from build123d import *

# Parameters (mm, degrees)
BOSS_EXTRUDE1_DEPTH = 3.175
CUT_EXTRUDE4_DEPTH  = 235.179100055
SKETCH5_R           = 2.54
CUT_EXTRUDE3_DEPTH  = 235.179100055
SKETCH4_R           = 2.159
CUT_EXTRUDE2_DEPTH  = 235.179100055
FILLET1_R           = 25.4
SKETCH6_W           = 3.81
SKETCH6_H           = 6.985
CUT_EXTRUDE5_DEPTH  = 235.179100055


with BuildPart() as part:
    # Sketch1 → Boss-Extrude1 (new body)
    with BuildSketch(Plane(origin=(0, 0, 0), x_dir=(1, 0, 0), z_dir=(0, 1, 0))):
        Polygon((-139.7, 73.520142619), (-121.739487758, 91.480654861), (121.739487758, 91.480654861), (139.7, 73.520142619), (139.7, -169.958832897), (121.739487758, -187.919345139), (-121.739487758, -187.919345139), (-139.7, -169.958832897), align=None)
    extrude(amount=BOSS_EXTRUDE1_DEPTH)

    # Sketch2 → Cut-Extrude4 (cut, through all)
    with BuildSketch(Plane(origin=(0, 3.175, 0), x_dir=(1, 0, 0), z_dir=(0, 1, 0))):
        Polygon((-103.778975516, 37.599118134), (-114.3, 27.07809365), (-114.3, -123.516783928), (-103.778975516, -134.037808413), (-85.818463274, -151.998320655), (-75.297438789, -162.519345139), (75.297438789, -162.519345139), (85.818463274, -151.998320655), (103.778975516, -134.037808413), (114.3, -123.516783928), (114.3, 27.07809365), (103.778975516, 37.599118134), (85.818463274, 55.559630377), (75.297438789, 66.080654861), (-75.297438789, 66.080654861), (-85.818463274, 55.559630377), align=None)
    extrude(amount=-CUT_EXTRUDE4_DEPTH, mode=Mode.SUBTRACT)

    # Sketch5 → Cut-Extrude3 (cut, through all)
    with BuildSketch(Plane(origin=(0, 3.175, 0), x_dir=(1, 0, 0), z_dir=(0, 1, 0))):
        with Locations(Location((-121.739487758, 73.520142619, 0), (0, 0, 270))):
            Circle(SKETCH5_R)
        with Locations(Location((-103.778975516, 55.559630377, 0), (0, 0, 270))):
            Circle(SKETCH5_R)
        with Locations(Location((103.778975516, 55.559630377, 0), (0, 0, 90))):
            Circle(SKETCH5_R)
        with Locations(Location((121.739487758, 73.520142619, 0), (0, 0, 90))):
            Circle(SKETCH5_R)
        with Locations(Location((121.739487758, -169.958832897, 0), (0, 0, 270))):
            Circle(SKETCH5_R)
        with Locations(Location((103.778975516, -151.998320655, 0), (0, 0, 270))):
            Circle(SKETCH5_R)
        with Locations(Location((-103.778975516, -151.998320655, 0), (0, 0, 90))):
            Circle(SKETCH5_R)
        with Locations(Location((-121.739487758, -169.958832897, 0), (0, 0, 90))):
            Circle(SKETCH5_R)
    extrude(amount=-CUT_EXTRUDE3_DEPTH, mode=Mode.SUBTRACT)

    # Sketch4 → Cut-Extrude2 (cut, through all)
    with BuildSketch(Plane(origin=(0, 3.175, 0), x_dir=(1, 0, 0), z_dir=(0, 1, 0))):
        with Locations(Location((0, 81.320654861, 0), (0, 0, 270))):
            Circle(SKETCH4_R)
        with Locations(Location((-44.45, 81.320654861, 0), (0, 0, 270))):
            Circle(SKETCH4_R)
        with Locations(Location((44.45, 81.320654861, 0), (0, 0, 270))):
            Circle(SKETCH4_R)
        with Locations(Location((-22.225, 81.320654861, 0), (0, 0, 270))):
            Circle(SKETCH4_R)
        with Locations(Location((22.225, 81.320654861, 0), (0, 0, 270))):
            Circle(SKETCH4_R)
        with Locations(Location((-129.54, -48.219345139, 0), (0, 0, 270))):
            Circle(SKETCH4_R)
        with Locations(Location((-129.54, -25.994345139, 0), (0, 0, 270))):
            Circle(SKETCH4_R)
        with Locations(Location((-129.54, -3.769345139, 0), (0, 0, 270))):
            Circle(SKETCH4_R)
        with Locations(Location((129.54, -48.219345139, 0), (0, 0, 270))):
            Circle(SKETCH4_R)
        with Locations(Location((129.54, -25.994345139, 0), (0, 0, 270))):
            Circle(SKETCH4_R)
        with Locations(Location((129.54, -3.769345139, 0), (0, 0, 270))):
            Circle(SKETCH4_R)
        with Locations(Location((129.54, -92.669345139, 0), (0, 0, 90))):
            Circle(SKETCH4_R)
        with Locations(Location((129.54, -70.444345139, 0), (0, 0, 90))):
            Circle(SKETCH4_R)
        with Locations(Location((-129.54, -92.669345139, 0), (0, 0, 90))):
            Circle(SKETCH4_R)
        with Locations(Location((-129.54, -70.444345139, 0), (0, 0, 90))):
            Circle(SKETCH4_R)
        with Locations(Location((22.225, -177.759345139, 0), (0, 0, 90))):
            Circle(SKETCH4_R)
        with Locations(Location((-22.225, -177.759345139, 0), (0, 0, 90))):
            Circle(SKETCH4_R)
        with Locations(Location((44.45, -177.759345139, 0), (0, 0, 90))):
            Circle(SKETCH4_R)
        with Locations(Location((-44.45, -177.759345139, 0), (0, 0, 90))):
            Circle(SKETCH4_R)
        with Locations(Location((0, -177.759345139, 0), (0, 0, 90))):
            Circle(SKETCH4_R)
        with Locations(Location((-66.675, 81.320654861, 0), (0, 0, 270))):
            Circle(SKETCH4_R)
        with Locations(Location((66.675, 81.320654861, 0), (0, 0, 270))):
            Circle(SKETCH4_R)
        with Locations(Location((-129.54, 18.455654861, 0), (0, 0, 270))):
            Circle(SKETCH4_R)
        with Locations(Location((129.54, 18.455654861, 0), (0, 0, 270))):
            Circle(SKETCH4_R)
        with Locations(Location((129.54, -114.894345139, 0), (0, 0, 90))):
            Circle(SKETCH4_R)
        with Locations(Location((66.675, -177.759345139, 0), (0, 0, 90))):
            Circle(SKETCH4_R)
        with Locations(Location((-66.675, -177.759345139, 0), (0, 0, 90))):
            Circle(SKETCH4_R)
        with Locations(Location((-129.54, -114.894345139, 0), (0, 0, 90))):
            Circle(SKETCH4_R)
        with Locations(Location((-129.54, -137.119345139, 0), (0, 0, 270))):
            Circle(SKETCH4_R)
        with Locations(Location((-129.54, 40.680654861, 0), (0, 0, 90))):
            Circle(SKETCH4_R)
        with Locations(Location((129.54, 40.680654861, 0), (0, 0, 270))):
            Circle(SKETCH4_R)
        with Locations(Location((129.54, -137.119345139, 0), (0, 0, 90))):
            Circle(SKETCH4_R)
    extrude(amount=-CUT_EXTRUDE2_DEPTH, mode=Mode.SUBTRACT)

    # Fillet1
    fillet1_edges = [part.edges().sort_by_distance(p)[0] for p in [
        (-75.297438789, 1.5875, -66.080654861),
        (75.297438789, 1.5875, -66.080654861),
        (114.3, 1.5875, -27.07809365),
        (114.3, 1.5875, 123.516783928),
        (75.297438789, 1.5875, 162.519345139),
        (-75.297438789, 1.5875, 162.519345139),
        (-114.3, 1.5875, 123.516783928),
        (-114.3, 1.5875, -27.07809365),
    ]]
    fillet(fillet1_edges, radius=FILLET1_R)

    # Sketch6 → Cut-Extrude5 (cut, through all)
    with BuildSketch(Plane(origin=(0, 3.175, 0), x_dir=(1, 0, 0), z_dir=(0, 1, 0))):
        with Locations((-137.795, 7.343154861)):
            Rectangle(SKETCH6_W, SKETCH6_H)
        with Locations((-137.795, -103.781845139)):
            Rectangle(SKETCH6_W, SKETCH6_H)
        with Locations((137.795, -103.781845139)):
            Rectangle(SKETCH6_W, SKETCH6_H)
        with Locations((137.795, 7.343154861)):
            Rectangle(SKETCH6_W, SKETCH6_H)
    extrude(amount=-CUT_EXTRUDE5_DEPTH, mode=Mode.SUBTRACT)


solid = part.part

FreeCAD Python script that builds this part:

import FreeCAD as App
import Part
import Sketcher
from FreeCAD import Vector
Q = App.Units.Quantity


def edges_at(feature, points):
    """Names of the edges that pass closest to the given points."""
    edges = feature.Shape.Edges
    near = lambda p: min(range(len(edges)), key=lambda i: edges[i].distToShape(Part.Vertex(*p))[0])
    return sorted({f"Edge{near(p) + 1}" for p in points})

doc = App.newDocument("Part")
body = doc.addObject("PartDesign::Body", "Body")

# Sketch on XZ plane
sketch1 = body.newObject("Sketcher::SketchObject", "Sketch")
sketch1.AttachmentSupport = (doc.getObject("XZ_Plane"), [""])
sketch1.MapMode = "FlatFace"
sketch1.addGeometry(Part.LineSegment(Vector(-121.739488, -91.480655, 0), Vector(-139.7, -73.520143, 0)), False)
sketch1.addGeometry(Part.LineSegment(Vector(-139.7, -73.520143, 0), Vector(-139.7, 169.958833, 0)), False)
sketch1.addGeometry(Part.LineSegment(Vector(-139.7, 169.958833, 0), Vector(-121.739488, 187.919345, 0)), False)
sketch1.addGeometry(Part.LineSegment(Vector(-121.739488, 187.919345, 0), Vector(121.739488, 187.919345, 0)), False)
sketch1.addGeometry(Part.LineSegment(Vector(121.739488, 187.919345, 0), Vector(139.7, 169.958833, 0)), False)
sketch1.addGeometry(Part.LineSegment(Vector(139.7, 169.958833, 0), Vector(139.7, -73.520143, 0)), False)
sketch1.addGeometry(Part.LineSegment(Vector(139.7, -73.520143, 0), Vector(121.739488, -91.480655, 0)), False)
sketch1.addGeometry(Part.LineSegment(Vector(121.739488, -91.480655, 0), Vector(-121.739488, -91.480655, 0)), False)
sketch1.addConstraint(Sketcher.Constraint("Coincident", 0, 2, 1, 1))
sketch1.addConstraint(Sketcher.Constraint("Coincident", 1, 2, 2, 1))
sketch1.addConstraint(Sketcher.Constraint("Coincident", 2, 2, 3, 1))
sketch1.addConstraint(Sketcher.Constraint("Coincident", 3, 2, 4, 1))
sketch1.addConstraint(Sketcher.Constraint("Coincident", 4, 2, 5, 1))
sketch1.addConstraint(Sketcher.Constraint("Coincident", 5, 2, 6, 1))
sketch1.addConstraint(Sketcher.Constraint("Coincident", 6, 2, 7, 1))
sketch1.addConstraint(Sketcher.Constraint("Coincident", 7, 2, 0, 1))
sketch1.addConstraint(Sketcher.Constraint("Vertical", 1))
sketch1.addConstraint(Sketcher.Constraint("Horizontal", 3))
sketch1.addConstraint(Sketcher.Constraint("Vertical", 5))
sketch1.addConstraint(Sketcher.Constraint("Horizontal", 7))
sketch1.addConstraint(Sketcher.Constraint("Symmetric", 1, 2, 4, 2, -2))
sketch1.addConstraint(Sketcher.Constraint("Perpendicular", 0, 2))
sketch1.addConstraint(Sketcher.Constraint("Perpendicular", 2, 4))
sketch1.addConstraint(Sketcher.Constraint("Perpendicular", 4, 6))
sketch1.addConstraint(Sketcher.Constraint("Horizontal", 0, 2, 5, 2))
sketch1.addConstraint(Sketcher.Constraint("Vertical", 3, 2, 6, 2))
sketch1.addConstraint(Sketcher.Constraint("Vertical", 2, 2, 7, 2))
sketch1.addConstraint(Sketcher.Constraint("Equal", 7, 1))
sketch1.addConstraint(Sketcher.Constraint("Distance", 0, Q("1 in")))
sketch1.addConstraint(Sketcher.Constraint("DistanceX", 1, 2, 4, 2, Q("11 in")))
sketch1.addConstraint(Sketcher.Constraint("DistanceY", 0, 2, -1, 1, Q("73.520143 mm")))
pad1 = body.newObject("PartDesign::Pad", "Pad")
pad1.Profile = sketch1
pad1.Length = Q("0.125 in")
pad1.Reversed = True

# Sketch on XZ plane
sketch2 = body.newObject("Sketcher::SketchObject", "Sketch001")
sketch2.AttachmentSupport = (doc.getObject("XZ_Plane"), [""])
sketch2.MapMode = "FlatFace"
sketch2.AttachmentOffset = App.Placement(Vector(0, 0, -0.125 * 25.4), App.Rotation())
sketch2.addGeometry(Part.LineSegment(Vector(-103.778976, -37.599118, 0), Vector(-114.3, -27.078094, 0)), False)
sketch2.addGeometry(Part.LineSegment(Vector(-114.3, -27.078094, 0), Vector(-114.3, 123.516784, 0)), False)
sketch2.addGeometry(Part.LineSegment(Vector(-114.3, 123.516784, 0), Vector(-103.778976, 134.037808, 0)), False)
sketch2.addGeometry(Part.LineSegment(Vector(-103.778976, 134.037808, 0), Vector(-85.818463, 151.998321, 0)), False)
sketch2.addGeometry(Part.LineSegment(Vector(-85.818463, 151.998321, 0), Vector(-75.297439, 162.519345, 0)), False)
sketch2.addGeometry(Part.LineSegment(Vector(-75.297439, 162.519345, 0), Vector(75.297439, 162.519345, 0)), False)
sketch2.addGeometry(Part.LineSegment(Vector(75.297439, 162.519345, 0), Vector(85.818463, 151.998321, 0)), False)
sketch2.addGeometry(Part.LineSegment(Vector(85.818463, 151.998321, 0), Vector(103.778976, 134.037808, 0)), False)
sketch2.addGeometry(Part.LineSegment(Vector(103.778976, 134.037808, 0), Vector(114.3, 123.516784, 0)), False)
sketch2.addGeometry(Part.LineSegment(Vector(114.3, 123.516784, 0), Vector(114.3, -27.078094, 0)), False)
sketch2.addGeometry(Part.LineSegment(Vector(114.3, -27.078094, 0), Vector(103.778976, -37.599118, 0)), False)
sketch2.addGeometry(Part.LineSegment(Vector(103.778976, -37.599118, 0), Vector(85.818463, -55.55963, 0)), False)
sketch2.addGeometry(Part.LineSegment(Vector(85.818463, -55.55963, 0), Vector(75.297439, -66.080655, 0)), False)
sketch2.addGeometry(Part.LineSegment(Vector(75.297439, -66.080655, 0), Vector(-75.297439, -66.080655, 0)), False)
sketch2.addGeometry(Part.LineSegment(Vector(-75.297439, -66.080655, 0), Vector(-85.818463, -55.55963, 0)), False)
sketch2.addGeometry(Part.LineSegment(Vector(-85.818463, -55.55963, 0), Vector(-103.778976, -37.599118, 0)), False)
sketch2.addConstraint(Sketcher.Constraint("Coincident", 0, 2, 1, 1))
sketch2.addConstraint(Sketcher.Constraint("Coincident", 1, 2, 2, 1))
sketch2.addConstraint(Sketcher.Constraint("Coincident", 2, 2, 3, 1))
sketch2.addConstraint(Sketcher.Constraint("Coincident", 3, 2, 4, 1))
sketch2.addConstraint(Sketcher.Constraint("Coincident", 4, 2, 5, 1))
sketch2.addConstraint(Sketcher.Constraint("Coincident", 5, 2, 6, 1))
sketch2.addConstraint(Sketcher.Constraint("Coincident", 6, 2, 7, 1))
sketch2.addConstraint(Sketcher.Constraint("Coincident", 7, 2, 8, 1))
sketch2.addConstraint(Sketcher.Constraint("Coincident", 8, 2, 9, 1))
sketch2.addConstraint(Sketcher.Constraint("Coincident", 9, 2, 10, 1))
sketch2.addConstraint(Sketcher.Constraint("Coincident", 10, 2, 11, 1))
sketch2.addConstraint(Sketcher.Constraint("Coincident", 11, 2, 12, 1))
sketch2.addConstraint(Sketcher.Constraint("Coincident", 12, 2, 13, 1))
sketch2.addConstraint(Sketcher.Constraint("Coincident", 13, 2, 14, 1))
sketch2.addConstraint(Sketcher.Constraint("Coincident", 14, 2, 15, 1))
sketch2.addConstraint(Sketcher.Constraint("Coincident", 15, 2, 0, 1))
sketch2.addConstraint(Sketcher.Constraint("Vertical", 1))
sketch2.addConstraint(Sketcher.Constraint("Horizontal", 5))
sketch2.addConstraint(Sketcher.Constraint("Vertical", 9))
sketch2.addConstraint(Sketcher.Constraint("Horizontal", 13))
sketch2.addConstraint(Sketcher.Constraint("Symmetric", 3, 2, 6, 2, -2))
sketch2.addConstraint(Sketcher.Constraint("Symmetric", 2, 2, 7, 2, -2))
sketch2.addConstraint(Sketcher.Constraint("Symmetric", 1, 2, 8, 2, -2))
sketch2.addConstraint(Sketcher.Constraint("Symmetric", 11, 2, 14, 2, -2))
sketch2.addConstraint(Sketcher.Constraint("Symmetric", 10, 2, 15, 2, -2))
sketch2.addConstraint(Sketcher.Constraint("Perpendicular", 0, 2))
sketch2.addConstraint(Sketcher.Constraint("Parallel", 2, 3))
sketch2.addConstraint(Sketcher.Constraint("Parallel", 3, 4))
sketch2.addConstraint(Sketcher.Constraint("Perpendicular", 4, 6))
sketch2.addConstraint(Sketcher.Constraint("Parallel", 6, 7))
sketch2.addConstraint(Sketcher.Constraint("Perpendicular", 8, 10))
sketch2.addConstraint(Sketcher.Constraint("Parallel", 10, 11))
sketch2.addConstraint(Sketcher.Constraint("Parallel", 11, 12))
sketch2.addConstraint(Sketcher.Constraint("Perpendicular", 12, 14))
sketch2.addConstraint(Sketcher.Constraint("Vertical", 7, 2, 10, 2))
sketch2.addConstraint(Sketcher.Constraint("Vertical", 6, 2, 11, 2))
sketch2.addConstraint(Sketcher.Constraint("Vertical", 5, 2, 12, 2))
sketch2.addConstraint(Sketcher.Constraint("Equal", 13, 1))
sketch2.addConstraint(Sketcher.Constraint("Equal", 2, 4))
sketch2.addConstraint(Sketcher.Constraint("Distance", 3, Q("1 in")))
sketch2.addConstraint(Sketcher.Constraint("DistanceX", 0, 2, 9, 2, Q("9 in")))
sketch2.addConstraint(Sketcher.Constraint("DistanceX", 5, 1, 5, 2, Q("150.594878 mm")))
sketch2.addConstraint(Sketcher.Constraint("DistanceY", -1, 1, 2, 2, Q("134.037808 mm")))
pocket1 = body.newObject("PartDesign::Pocket", "Pocket")
pocket1.Profile = sketch2
pocket1.Type = "ThroughAll"
pocket1.Reversed = True

# Sketch on XZ plane
sketch3 = body.newObject("Sketcher::SketchObject", "Sketch002")
sketch3.AttachmentSupport = (doc.getObject("XZ_Plane"), [""])
sketch3.MapMode = "FlatFace"
sketch3.AttachmentOffset = App.Placement(Vector(0, 0, -0.125 * 25.4), App.Rotation())
sketch3.addGeometry(Part.Circle(Vector(-121.739488, -73.520143, 0), Vector(0, 0, 1), 2.54), False)
sketch3.addGeometry(Part.Circle(Vector(-103.778976, -55.55963, 0), Vector(0, 0, 1), 2.54), False)
sketch3.addGeometry(Part.Circle(Vector(103.778976, -55.55963, 0), Vector(0, 0, 1), 2.54), False)
sketch3.addGeometry(Part.Circle(Vector(121.739488, -73.520143, 0), Vector(0, 0, 1), 2.54), False)
sketch3.addGeometry(Part.Circle(Vector(121.739488, 169.958833, 0), Vector(0, 0, 1), 2.54), False)
sketch3.addGeometry(Part.Circle(Vector(103.778976, 151.998321, 0), Vector(0, 0, 1), 2.54), False)
sketch3.addGeometry(Part.Circle(Vector(-103.778976, 151.998321, 0), Vector(0, 0, 1), 2.54), False)
sketch3.addGeometry(Part.Circle(Vector(-121.739488, 169.958833, 0), Vector(0, 0, 1), 2.54), False)
sketch3.addConstraint(Sketcher.Constraint("Equal", 0, 1))
sketch3.addConstraint(Sketcher.Constraint("Equal", 1, 2))
sketch3.addConstraint(Sketcher.Constraint("Equal", 2, 3))
sketch3.addConstraint(Sketcher.Constraint("Equal", 3, 4))
sketch3.addConstraint(Sketcher.Constraint("Equal", 4, 5))
sketch3.addConstraint(Sketcher.Constraint("Equal", 5, 6))
sketch3.addConstraint(Sketcher.Constraint("Equal", 6, 7))
sketch3.addConstraint(Sketcher.Constraint("Symmetric", 1, 3, 2, 3, -2))
sketch3.addConstraint(Sketcher.Constraint("Symmetric", 0, 3, 3, 3, -2))
sketch3.addConstraint(Sketcher.Constraint("Symmetric", 5, 3, 6, 3, -2))
sketch3.addConstraint(Sketcher.Constraint("Symmetric", 4, 3, 7, 3, -2))
sketch3.addConstraint(Sketcher.Constraint("Vertical", 3, 3, 4, 3))
sketch3.addConstraint(Sketcher.Constraint("Vertical", 2, 3, 5, 3))
sketch3.addConstraint(Sketcher.Constraint("Diameter", 0, Q("0.2 in")))
sketch3.addConstraint(Sketcher.Constraint("DistanceY", 1, 3, -1, 1, Q("55.55963 mm")))
sketch3.addConstraint(Sketcher.Constraint("DistanceY", -1, 1, 5, 3, Q("151.998321 mm")))
sketch3.addConstraint(Sketcher.Constraint("DistanceX", 1, 3, 2, 3, Q("207.557951 mm")))
sketch3.addConstraint(Sketcher.Constraint("DistanceX", 0, 3, -1, 1, Q("121.739488 mm")))
sketch3.addConstraint(Sketcher.Constraint("DistanceY", 0, 3, -1, 1, Q("73.520143 mm")))
sketch3.addConstraint(Sketcher.Constraint("DistanceY", -1, 1, 4, 3, Q("169.958833 mm")))
pocket2 = body.newObject("PartDesign::Pocket", "Pocket001")
pocket2.Profile = sketch3
pocket2.Type = "ThroughAll"
pocket2.Reversed = True

# Sketch on XZ plane
sketch4 = body.newObject("Sketcher::SketchObject", "Sketch003")
sketch4.AttachmentSupport = (doc.getObject("XZ_Plane"), [""])
sketch4.MapMode = "FlatFace"
sketch4.AttachmentOffset = App.Placement(Vector(0, 0, -0.125 * 25.4), App.Rotation())
sketch4.addGeometry(Part.Circle(Vector(0, -81.320655, 0), Vector(0, 0, 1), 2.159), False)
sketch4.addGeometry(Part.Circle(Vector(-44.45, -81.320655, 0), Vector(0, 0, 1), 2.159), False)
sketch4.addGeometry(Part.Circle(Vector(44.45, -81.320655, 0), Vector(0, 0, 1), 2.159), False)
sketch4.addGeometry(Part.Circle(Vector(-22.225, -81.320655, 0), Vector(0, 0, 1), 2.159), False)
sketch4.addGeometry(Part.Circle(Vector(22.225, -81.320655, 0), Vector(0, 0, 1), 2.159), False)
sketch4.addGeometry(Part.Circle(Vector(-129.54, 48.219345, 0), Vector(0, 0, 1), 2.159), False)
sketch4.addGeometry(Part.Circle(Vector(-129.54, 25.994345, 0), Vector(0, 0, 1), 2.159), False)
sketch4.addGeometry(Part.Circle(Vector(-129.54, 3.769345, 0), Vector(0, 0, 1), 2.159), False)
sketch4.addGeometry(Part.Circle(Vector(129.54, 48.219345, 0), Vector(0, 0, 1), 2.159), False)
sketch4.addGeometry(Part.Circle(Vector(129.54, 25.994345, 0), Vector(0, 0, 1), 2.159), False)
sketch4.addGeometry(Part.Circle(Vector(129.54, 3.769345, 0), Vector(0, 0, 1), 2.159), False)
sketch4.addGeometry(Part.Circle(Vector(129.54, 92.669345, 0), Vector(0, 0, 1), 2.159), False)
sketch4.addGeometry(Part.Circle(Vector(129.54, 70.444345, 0), Vector(0, 0, 1), 2.159), False)
sketch4.addGeometry(Part.Circle(Vector(-129.54, 92.669345, 0), Vector(0, 0, 1), 2.159), False)
sketch4.addGeometry(Part.Circle(Vector(-129.54, 70.444345, 0), Vector(0, 0, 1), 2.159), False)
sketch4.addGeometry(Part.Circle(Vector(22.225, 177.759345, 0), Vector(0, 0, 1), 2.159), False)
sketch4.addGeometry(Part.Circle(Vector(-22.225, 177.759345, 0), Vector(0, 0, 1), 2.159), False)
sketch4.addGeometry(Part.Circle(Vector(44.45, 177.759345, 0), Vector(0, 0, 1), 2.159), False)
sketch4.addGeometry(Part.Circle(Vector(-44.45, 177.759345, 0), Vector(0, 0, 1), 2.159), False)
sketch4.addGeometry(Part.Circle(Vector(0, 177.759345, 0), Vector(0, 0, 1), 2.159), False)
sketch4.addGeometry(Part.Circle(Vector(-66.675, -81.320655, 0), Vector(0, 0, 1), 2.159), False)
sketch4.addGeometry(Part.Circle(Vector(66.675, -81.320655, 0), Vector(0, 0, 1), 2.159), False)
sketch4.addGeometry(Part.Circle(Vector(-129.54, -18.455655, 0), Vector(0, 0, 1), 2.159), False)
sketch4.addGeometry(Part.Circle(Vector(129.54, -18.455655, 0), Vector(0, 0, 1), 2.159), False)
sketch4.addGeometry(Part.Circle(Vector(129.54, 114.894345, 0), Vector(0, 0, 1), 2.159), False)
sketch4.addGeometry(Part.Circle(Vector(66.675, 177.759345, 0), Vector(0, 0, 1), 2.159), False)
sketch4.addGeometry(Part.Circle(Vector(-66.675, 177.759345, 0), Vector(0, 0, 1), 2.159), False)
sketch4.addGeometry(Part.Circle(Vector(-129.54, 114.894345, 0), Vector(0, 0, 1), 2.159), False)
sketch4.addGeometry(Part.Circle(Vector(-129.54, 137.119345, 0), Vector(0, 0, 1), 2.159), False)
sketch4.addGeometry(Part.Circle(Vector(-129.54, -40.680655, 0), Vector(0, 0, 1), 2.159), False)
sketch4.addGeometry(Part.Circle(Vector(129.54, -40.680655, 0), Vector(0, 0, 1), 2.159), False)
sketch4.addGeometry(Part.Circle(Vector(129.54, 137.119345, 0), Vector(0, 0, 1), 2.159), False)
sketch4.addConstraint(Sketcher.Constraint("Equal", 0, 1))
sketch4.addConstraint(Sketcher.Constraint("Equal", 1, 2))
sketch4.addConstraint(Sketcher.Constraint("Equal", 2, 3))
sketch4.addConstraint(Sketcher.Constraint("Equal", 3, 4))
sketch4.addConstraint(Sketcher.Constraint("Equal", 4, 5))
sketch4.addConstraint(Sketcher.Constraint("Equal", 5, 6))
sketch4.addConstraint(Sketcher.Constraint("Equal", 6, 7))
sketch4.addConstraint(Sketcher.Constraint("Equal", 7, 8))
sketch4.addConstraint(Sketcher.Constraint("Equal", 8, 9))
sketch4.addConstraint(Sketcher.Constraint("Equal", 9, 10))
sketch4.addConstraint(Sketcher.Constraint("Equal", 10, 11))
sketch4.addConstraint(Sketcher.Constraint("Equal", 11, 12))
sketch4.addConstraint(Sketcher.Constraint("Equal", 12, 13))
sketch4.addConstraint(Sketcher.Constraint("Equal", 13, 14))
sketch4.addConstraint(Sketcher.Constraint("Equal", 14, 15))
sketch4.addConstraint(Sketcher.Constraint("Equal", 15, 16))
sketch4.addConstraint(Sketcher.Constraint("Equal", 16, 17))
sketch4.addConstraint(Sketcher.Constraint("Equal", 17, 18))
sketch4.addConstraint(Sketcher.Constraint("Equal", 18, 19))
sketch4.addConstraint(Sketcher.Constraint("Equal", 19, 20))
sketch4.addConstraint(Sketcher.Constraint("Equal", 20, 21))
sketch4.addConstraint(Sketcher.Constraint("Equal", 21, 22))
sketch4.addConstraint(Sketcher.Constraint("Equal", 22, 23))
sketch4.addConstraint(Sketcher.Constraint("Equal", 23, 24))
sketch4.addConstraint(Sketcher.Constraint("Equal", 24, 25))
sketch4.addConstraint(Sketcher.Constraint("Equal", 25, 26))
sketch4.addConstraint(Sketcher.Constraint("Equal", 26, 27))
sketch4.addConstraint(Sketcher.Constraint("Equal", 27, 28))
sketch4.addConstraint(Sketcher.Constraint("Equal", 28, 29))
sketch4.addConstraint(Sketcher.Constraint("Equal", 29, 30))
sketch4.addConstraint(Sketcher.Constraint("Equal", 30, 31))
sketch4.addConstraint(Sketcher.Constraint("Symmetric", 1, 3, 2, 3, -2))
sketch4.addConstraint(Sketcher.Constraint("Symmetric", 3, 3, 4, 3, -2))
sketch4.addConstraint(Sketcher.Constraint("Symmetric", 5, 3, 8, 3, -2))
sketch4.addConstraint(Sketcher.Constraint("Symmetric", 6, 3, 9, 3, -2))
sketch4.addConstraint(Sketcher.Constraint("Symmetric", 7, 3, 10, 3, -2))
sketch4.addConstraint(Sketcher.Constraint("Symmetric", 11, 3, 13, 3, -2))
sketch4.addConstraint(Sketcher.Constraint("Symmetric", 12, 3, 14, 3, -2))
sketch4.addConstraint(Sketcher.Constraint("Symmetric", 15, 3, 16, 3, -2))
sketch4.addConstraint(Sketcher.Constraint("Symmetric", 17, 3, 18, 3, -2))
sketch4.addConstraint(Sketcher.Constraint("Symmetric", 20, 3, 21, 3, -2))
sketch4.addConstraint(Sketcher.Constraint("Symmetric", 22, 3, 23, 3, -2))
sketch4.addConstraint(Sketcher.Constraint("Symmetric", 25, 3, 26, 3, -2))
sketch4.addConstraint(Sketcher.Constraint("Symmetric", 24, 3, 27, 3, -2))
sketch4.addConstraint(Sketcher.Constraint("Symmetric", 29, 3, 30, 3, -2))
sketch4.addConstraint(Sketcher.Constraint("Symmetric", 28, 3, 31, 3, -2))
sketch4.addConstraint(Sketcher.Constraint("PointOnObject", 0, 3, -2))
sketch4.addConstraint(Sketcher.Constraint("PointOnObject", 19, 3, -2))
sketch4.addConstraint(Sketcher.Constraint("Horizontal", 0, 3, 1, 3))
sketch4.addConstraint(Sketcher.Constraint("Horizontal", 2, 3, 3, 3))
sketch4.addConstraint(Sketcher.Constraint("Horizontal", 16, 3, 17, 3))
sketch4.addConstraint(Sketcher.Constraint("Horizontal", 18, 3, 19, 3))
sketch4.addConstraint(Sketcher.Constraint("Horizontal", 4, 3, 20, 3))
sketch4.addConstraint(Sketcher.Constraint("Horizontal", 19, 3, 25, 3))
sketch4.addConstraint(Sketcher.Constraint("Vertical", 5, 3, 6, 3))
sketch4.addConstraint(Sketcher.Constraint("Vertical", 6, 3, 7, 3))
sketch4.addConstraint(Sketcher.Constraint("Vertical", 10, 3, 11, 3))
sketch4.addConstraint(Sketcher.Constraint("Vertical", 11, 3, 12, 3))
sketch4.addConstraint(Sketcher.Constraint("Vertical", 4, 3, 15, 3))
sketch4.addConstraint(Sketcher.Constraint("Vertical", 2, 3, 17, 3))
sketch4.addConstraint(Sketcher.Constraint("Vertical", 14, 3, 22, 3))
sketch4.addConstraint(Sketcher.Constraint("Vertical", 23, 3, 24, 3))
sketch4.addConstraint(Sketcher.Constraint("Vertical", 21, 3, 25, 3))
sketch4.addConstraint(Sketcher.Constraint("Vertical", 27, 3, 28, 3))
sketch4.addConstraint(Sketcher.Constraint("Vertical", 28, 3, 29, 3))
sketch4.addConstraint(Sketcher.Constraint("Diameter", 0, Q("0.17 in")))
sketch4.addConstraint(Sketcher.Constraint("DistanceX", 5, 3, -1, 1, Q("5.1 in")))
sketch4.addConstraint(Sketcher.Constraint("DistanceX", 1, 3, 2, 3, Q("3.5 in")))
sketch4.addConstraint(Sketcher.Constraint("DistanceY", 1, 3, 5, 3, Q("5.1 in")))
sketch4.addConstraint(Sketcher.Constraint("DistanceY", 10, 3, 11, 3, Q("3.5 in")))
sketch4.addConstraint(Sketcher.Constraint("DistanceY", 8, 3, 15, 3, Q("5.1 in")))
sketch4.addConstraint(Sketcher.Constraint("DistanceX", 20, 3, 4, 3, Q("3.5 in")))
sketch4.addConstraint(Sketcher.Constraint("DistanceY", 22, 3, 14, 3, Q("3.5 in")))
sketch4.addConstraint(Sketcher.Constraint("DistanceY", 9, 3, 24, 3, Q("3.5 in")))
sketch4.addConstraint(Sketcher.Constraint("DistanceY", 28, 3, 26, 3, Q("1.6 in")))
sketch4.addConstraint(Sketcher.Constraint("DistanceY", 20, 3, 29, 3, Q("1.6 in")))
sketch4.addConstraint(Sketcher.Constraint("DistanceX", 3, 3, 4, 3, Q("1.75 in")))
sketch4.addConstraint(Sketcher.Constraint("DistanceY", 7, 3, 5, 3, Q("1.75 in")))
sketch4.addConstraint(Sketcher.Constraint("DistanceY", 9, 3, 12, 3, Q("1.75 in")))
sketch4.addConstraint(Sketcher.Constraint("DistanceY", 6, 3, 5, 3, Q("0.875 in")))
sketch4.addConstraint(Sketcher.Constraint("DistanceY", 0, 3, -1, 1, Q("81.320655 mm")))
pocket3 = body.newObject("PartDesign::Pocket", "Pocket002")
pocket3.Profile = sketch4
pocket3.Type = "ThroughAll"
pocket3.Reversed = True
doc.recompute()

fillet = body.newObject("PartDesign::Fillet", "Fillet")
fillet.Base = (pocket3, edges_at(pocket3, [
    (-75.297, 1.587, -66.081),
    (75.297, 1.587, -66.081),
    (114.3, 1.587, -27.078),
    (114.3, 1.587, 123.517),
    (75.297, 1.587, 162.519),
    (-75.297, 1.587, 162.519),
    (-114.3, 1.587, 123.517),
    (-114.3, 1.587, -27.078),
]))
fillet.Radius = Q("1 in")

# Sketch on XZ plane
sketch5 = body.newObject("Sketcher::SketchObject", "Sketch004")
sketch5.AttachmentSupport = (doc.getObject("XZ_Plane"), [""])
sketch5.MapMode = "FlatFace"
sketch5.AttachmentOffset = App.Placement(Vector(0, 0, -0.125 * 25.4), App.Rotation())
sketch5.addGeometry(Part.LineSegment(Vector(-139.7, -10.835655, 0), Vector(-139.7, -3.850655, 0)), False)
sketch5.addGeometry(Part.LineSegment(Vector(-139.7, -3.850655, 0), Vector(-135.89, -3.850655, 0)), False)
sketch5.addGeometry(Part.LineSegment(Vector(-135.89, -3.850655, 0), Vector(-135.89, -10.835655, 0)), False)
sketch5.addGeometry(Part.LineSegment(Vector(-135.89, -10.835655, 0), Vector(-139.7, -10.835655, 0)), False)
sketch5.addGeometry(Part.LineSegment(Vector(-139.7, 100.289345, 0), Vector(-139.7, 107.274345, 0)), False)
sketch5.addGeometry(Part.LineSegment(Vector(-139.7, 107.274345, 0), Vector(-135.89, 107.274345, 0)), False)
sketch5.addGeometry(Part.LineSegment(Vector(-135.89, 107.274345, 0), Vector(-135.89, 100.289345, 0)), False)
sketch5.addGeometry(Part.LineSegment(Vector(-135.89, 100.289345, 0), Vector(-139.7, 100.289345, 0)), False)
sketch5.addGeometry(Part.LineSegment(Vector(135.89, 100.289345, 0), Vector(135.89, 107.274345, 0)), False)
sketch5.addGeometry(Part.LineSegment(Vector(135.89, 107.274345, 0), Vector(139.7, 107.274345, 0)), False)
sketch5.addGeometry(Part.LineSegment(Vector(139.7, 107.274345, 0), Vector(139.7, 100.289345, 0)), False)
sketch5.addGeometry(Part.LineSegment(Vector(139.7, 100.289345, 0), Vector(135.89, 100.289345, 0)), False)
sketch5.addGeometry(Part.LineSegment(Vector(135.89, -10.835655, 0), Vector(135.89, -3.850655, 0)), False)
sketch5.addGeometry(Part.LineSegment(Vector(135.89, -3.850655, 0), Vector(139.7, -3.850655, 0)), False)
sketch5.addGeometry(Part.LineSegment(Vector(139.7, -3.850655, 0), Vector(139.7, -10.835655, 0)), False)
sketch5.addGeometry(Part.LineSegment(Vector(139.7, -10.835655, 0), Vector(135.89, -10.835655, 0)), False)
sketch5.addConstraint(Sketcher.Constraint("Coincident", 0, 2, 1, 1))
sketch5.addConstraint(Sketcher.Constraint("Coincident", 1, 2, 2, 1))
sketch5.addConstraint(Sketcher.Constraint("Coincident", 2, 2, 3, 1))
sketch5.addConstraint(Sketcher.Constraint("Coincident", 3, 2, 0, 1))
sketch5.addConstraint(Sketcher.Constraint("Coincident", 4, 2, 5, 1))
sketch5.addConstraint(Sketcher.Constraint("Coincident", 5, 2, 6, 1))
sketch5.addConstraint(Sketcher.Constraint("Coincident", 6, 2, 7, 1))
sketch5.addConstraint(Sketcher.Constraint("Coincident", 7, 2, 4, 1))
sketch5.addConstraint(Sketcher.Constraint("Coincident", 8, 2, 9, 1))
sketch5.addConstraint(Sketcher.Constraint("Coincident", 9, 2, 10, 1))
sketch5.addConstraint(Sketcher.Constraint("Coincident", 10, 2, 11, 1))
sketch5.addConstraint(Sketcher.Constraint("Coincident", 11, 2, 8, 1))
sketch5.addConstraint(Sketcher.Constraint("Coincident", 12, 2, 13, 1))
sketch5.addConstraint(Sketcher.Constraint("Coincident", 13, 2, 14, 1))
sketch5.addConstraint(Sketcher.Constraint("Coincident", 14, 2, 15, 1))
sketch5.addConstraint(Sketcher.Constraint("Coincident", 15, 2, 12, 1))
sketch5.addConstraint(Sketcher.Constraint("Vertical", 0))
sketch5.addConstraint(Sketcher.Constraint("Horizontal", 1))
sketch5.addConstraint(Sketcher.Constraint("Vertical", 2))
sketch5.addConstraint(Sketcher.Constraint("Horizontal", 3))
sketch5.addConstraint(Sketcher.Constraint("Vertical", 4))
sketch5.addConstraint(Sketcher.Constraint("Horizontal", 5))
sketch5.addConstraint(Sketcher.Constraint("Vertical", 6))
sketch5.addConstraint(Sketcher.Constraint("Horizontal", 7))
sketch5.addConstraint(Sketcher.Constraint("Vertical", 8))
sketch5.addConstraint(Sketcher.Constraint("Horizontal", 9))
sketch5.addConstraint(Sketcher.Constraint("Vertical", 10))
sketch5.addConstraint(Sketcher.Constraint("Horizontal", 11))
sketch5.addConstraint(Sketcher.Constraint("Vertical", 12))
sketch5.addConstraint(Sketcher.Constraint("Horizontal", 13))
sketch5.addConstraint(Sketcher.Constraint("Vertical", 14))
sketch5.addConstraint(Sketcher.Constraint("Horizontal", 15))
sketch5.addConstraint(Sketcher.Constraint("Symmetric", 5, 2, 8, 2, -2))
sketch5.addConstraint(Sketcher.Constraint("Symmetric", 7, 2, 10, 2, -2))
sketch5.addConstraint(Sketcher.Constraint("Symmetric", 1, 2, 12, 2, -2))
sketch5.addConstraint(Sketcher.Constraint("Symmetric", 3, 2, 14, 2, -2))
sketch5.addConstraint(Sketcher.Constraint("Vertical", 3, 2, 4, 2))
sketch5.addConstraint(Sketcher.Constraint("Vertical", 2, 2, 5, 2))
sketch5.addConstraint(Sketcher.Constraint("Equal", 2, 4))
sketch5.addConstraint(Sketcher.Constraint("DistanceX", 4, 2, 9, 2, Q("11 in")))
sketch5.addConstraint(Sketcher.Constraint("DistanceX", 1, 1, 1, 2, Q("0.15 in")))
sketch5.addConstraint(Sketcher.Constraint("DistanceY", 1, 2, 6, 2, Q("4.1 in")))
sketch5.addConstraint(Sketcher.Constraint("DistanceY", 0, 1, 0, 2, Q("0.275 in")))
sketch5.addConstraint(Sketcher.Constraint("DistanceY", 0, 2, -1, 1, Q("3.850655 mm")))
pocket4 = body.newObject("PartDesign::Pocket", "Pocket003")
pocket4.Profile = sketch5
pocket4.Type = "ThroughAll"
pocket4.Reversed = True

doc.recompute()
